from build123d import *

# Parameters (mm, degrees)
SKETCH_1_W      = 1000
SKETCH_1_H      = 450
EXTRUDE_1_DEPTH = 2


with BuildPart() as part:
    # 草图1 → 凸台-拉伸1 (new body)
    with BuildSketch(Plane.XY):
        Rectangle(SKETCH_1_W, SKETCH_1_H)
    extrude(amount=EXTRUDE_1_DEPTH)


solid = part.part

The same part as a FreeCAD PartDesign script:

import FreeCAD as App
import Part
import Sketcher
Q = App.Units.Quantity


def add_polygon(sketch, points):
    """Adds a closed chain of lines whose ends are joined by coincident constraints."""
    first, n = sketch.GeometryCount, len(points)
    for a, b in zip(points, points[1:] + points[:1]):
        sketch.addGeometry(Part.LineSegment(App.Vector(*a, 0), App.Vector(*b, 0)), False)
    for i in range(n):
        sketch.addConstraint(Sketcher.Constraint("Coincident", first + i, 2, first + (i + 1) % n, 1))

doc = App.newDocument("Part")
body = doc.addObject("PartDesign::Body", "Body")

# Sketch on XY plane
sketch1 = doc.addObject("Sketcher::SketchObject", "Sketch")
body.addObject(sketch1)
sketch1.AttachmentSupport = (doc.XY_Plane, [""])
sketch1.MapMode = "FlatFace"
add_polygon(sketch1, [(-500, 225), (-500, -225), (500, -225), (500, 225)])  # lines 0-3
sketch1.addConstraint([
    Sketcher.Constraint("Vertical", 0),
    Sketcher.Constraint("Horizontal", 1),
    Sketcher.Constraint("Vertical", 2),
    Sketcher.Constraint("Horizontal", 3),
    Sketcher.Constraint("Symmetric", 0, 2, 2, 2, -1, 1),
    Sketcher.Constraint("DistanceX", 1, 1, 1, 2, Q("1000 mm")),
    Sketcher.Constraint("DistanceY", 0, 2, 0, 1, Q("450 mm")),
])
pad1 = doc.addObject("PartDesign::Pad", "Pad")
body.addObject(pad1)
pad1.Profile = sketch1
pad1.Length = 2

doc.recompute()
